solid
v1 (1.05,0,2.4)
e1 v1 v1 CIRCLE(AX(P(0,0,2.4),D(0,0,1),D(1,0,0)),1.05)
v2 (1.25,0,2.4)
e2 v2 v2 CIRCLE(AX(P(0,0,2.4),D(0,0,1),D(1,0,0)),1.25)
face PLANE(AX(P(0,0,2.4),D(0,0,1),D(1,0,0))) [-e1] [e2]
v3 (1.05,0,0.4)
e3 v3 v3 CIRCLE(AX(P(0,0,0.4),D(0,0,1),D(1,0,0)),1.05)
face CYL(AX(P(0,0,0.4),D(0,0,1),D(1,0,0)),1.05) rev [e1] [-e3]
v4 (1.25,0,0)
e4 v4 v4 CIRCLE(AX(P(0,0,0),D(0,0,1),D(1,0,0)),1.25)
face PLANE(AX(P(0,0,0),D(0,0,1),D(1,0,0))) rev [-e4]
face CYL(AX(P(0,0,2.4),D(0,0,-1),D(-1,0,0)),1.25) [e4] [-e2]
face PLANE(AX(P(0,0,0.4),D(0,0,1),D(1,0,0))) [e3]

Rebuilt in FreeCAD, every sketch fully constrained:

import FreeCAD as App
import Part
import Sketcher

doc = App.newDocument("Part")
body = doc.addObject("PartDesign::Body", "Body")

sketch1 = body.newObject("Sketcher::SketchObject", "Sketch")
sketch1.AttachmentSupport = (doc.getObject("XY_Plane"), [""])
sketch1.MapMode = "FlatFace"
sketch1.addGeometry(Part.Circle(App.Vector(0, 0, 0), App.Vector(0, 0, 1), 1.2), False)
sketch1.addConstraint([
    Sketcher.Constraint("Coincident", 0, 3, -1, 1),
    Sketcher.Constraint("Diameter", 0, 2.5),
])
pad1 = body.newObject("PartDesign::Pad", "Pad")
pad1.Profile = sketch1
pad1.Length = 2.4

sketch2 = body.newObject("Sketcher::SketchObject", "Sketch001")
sketch2.AttachmentSupport = (doc.getObject("XY_Plane"), [""])
sketch2.MapMode = "FlatFace"
sketch2.AttachmentOffset = App.Placement(App.Vector(0, 0, 2.4), App.Rotation())
sketch2.addGeometry(Part.Circle(App.Vector(0, 0, 0), App.Vector(0, 0, 1), 1.1), False)
sketch2.addConstraint([
    Sketcher.Constraint("Coincident", 0, 3, -1, 1),
    Sketcher.Constraint("Diameter", 0, 2.1),
])
pocket1 = body.newObject("PartDesign::Pocket", "Pocket")
pocket1.Profile = sketch2
pocket1.Length = 2

doc.recompute()
